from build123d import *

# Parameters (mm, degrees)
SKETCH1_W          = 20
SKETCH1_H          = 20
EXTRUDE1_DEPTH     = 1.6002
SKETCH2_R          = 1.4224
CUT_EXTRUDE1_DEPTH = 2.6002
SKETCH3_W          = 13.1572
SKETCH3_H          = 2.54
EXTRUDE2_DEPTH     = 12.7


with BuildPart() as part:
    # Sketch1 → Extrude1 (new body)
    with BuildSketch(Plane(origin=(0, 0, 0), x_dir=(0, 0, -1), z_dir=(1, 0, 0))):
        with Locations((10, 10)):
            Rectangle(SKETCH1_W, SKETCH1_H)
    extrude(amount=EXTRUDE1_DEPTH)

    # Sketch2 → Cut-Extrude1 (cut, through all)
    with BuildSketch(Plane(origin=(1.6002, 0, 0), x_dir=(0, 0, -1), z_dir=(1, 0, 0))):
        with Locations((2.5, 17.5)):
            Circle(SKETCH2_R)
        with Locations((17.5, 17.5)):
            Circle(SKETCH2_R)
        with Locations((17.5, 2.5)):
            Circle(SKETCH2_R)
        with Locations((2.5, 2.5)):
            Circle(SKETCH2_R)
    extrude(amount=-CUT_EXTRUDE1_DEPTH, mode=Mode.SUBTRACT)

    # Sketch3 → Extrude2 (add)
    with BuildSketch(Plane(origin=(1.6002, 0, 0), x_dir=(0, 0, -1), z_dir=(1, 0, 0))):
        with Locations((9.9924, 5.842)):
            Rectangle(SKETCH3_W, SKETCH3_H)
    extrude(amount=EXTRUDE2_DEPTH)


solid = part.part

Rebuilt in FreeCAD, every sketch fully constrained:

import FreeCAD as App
import Part
import Sketcher
from FreeCAD import Vector
Q = App.Units.Quantity

doc = App.newDocument("Part")
params = doc.addObject("Spreadsheet::Sheet", "Params")
for row, (alias, value) in enumerate([
    ("pad1_length", "0.063 in"),
    ("sketch2_diameter", "0.112 in"),
    ("sketch3_width", "0.1 in"),
    ("sketch3_height", "0.518 in"),
    ("pad2_length", "0.5 in"),
], start=1):
    params.set(f"A{row}", alias)
    params.set(f"B{row}", "=" + value)
    params.setAlias(f"B{row}", alias)

body = doc.addObject("PartDesign::Body", "Body")

sketch1 = doc.addObject("Sketcher::SketchObject", "Sketch")
body.addObject(sketch1)
sketch1.AttachmentSupport = (doc.YZ_Plane, [""])
sketch1.MapMode = "FlatFace"
sketch1.addGeometry([
    Part.LineSegment(Vector(20, 0, 0), Vector(0, 0, 0)),
    Part.LineSegment(Vector(0, 0, 0), Vector(0, -20, 0)),
    Part.LineSegment(Vector(0, -20, 0), Vector(20, -20, 0)),
    Part.LineSegment(Vector(20, -20, 0), Vector(20, 0, 0)),
], False)
sketch1.addConstraint([
    Sketcher.Constraint("Coincident", 0, 2, 1, 1),
    Sketcher.Constraint("Coincident", 1, 2, 2, 1),
    Sketcher.Constraint("Coincident", 2, 2, 3, 1),
    Sketcher.Constraint("Coincident", 3, 2, 0, 1),
    Sketcher.Constraint("Horizontal", 0),
    Sketcher.Constraint("Vertical", 1),
    Sketcher.Constraint("Horizontal", 2),
    Sketcher.Constraint("Vertical", 3),
    Sketcher.Constraint("Coincident", 0, 2, -1, 1),
    Sketcher.Constraint("Equal", 2, 1),
    Sketcher.Constraint("DistanceX", 0, 2, 0, 1, 20.0),
])
pad1 = doc.addObject("PartDesign::Pad", "Pad")
body.addObject(pad1)
pad1.Profile = sketch1
pad1.setExpression("Length", "Params.pad1_length")

sketch2 = doc.addObject("Sketcher::SketchObject", "Sketch001")
body.addObject(sketch2)
sketch2.AttachmentSupport = (doc.YZ_Plane, [""])
sketch2.MapMode = "FlatFace"
sketch2.AttachmentOffset = App.Placement(Vector(0, 0, 0.063 * 25.4), App.Rotation())
sketch2.addGeometry([
    Part.Circle(Vector(17.5, -2.5, 0), Vector(0, 0, 1), 1.4),
    Part.Circle(Vector(17.5, -17.5, 0), Vector(0, 0, 1), 1.4),
    Part.Circle(Vector(2.5, -17.5, 0), Vector(0, 0, 1), 1.4),
    Part.Circle(Vector(2.5, -2.5, 0), Vector(0, 0, 1), 1.4),
], False)
sketch2.addConstraint([
    Sketcher.Constraint("Equal", 0, 1),
    Sketcher.Constraint("Equal", 1, 2),
    Sketcher.Constraint("Equal", 2, 3),
    Sketcher.Constraint("Horizontal", 1, 3, 2, 3),
    Sketcher.Constraint("Horizontal", 0, 3, 3, 3),
    Sketcher.Constraint("Vertical", 0, 3, 1, 3),
    Sketcher.Constraint("Vertical", 2, 3, 3, 3),
    Sketcher.Constraint("Diameter", 0, Q("0.112 in")),
    Sketcher.Constraint("DistanceX", -1, 1, 0, 3, 17.5),
    Sketcher.Constraint("DistanceY", 0, 3, -1, 1, 2.5),
    Sketcher.Constraint("DistanceY", 1, 3, -1, 1, 17.5),
    Sketcher.Constraint("DistanceX", -1, 1, 2, 3, 2.5),
])
sketch2.setExpression("Constraints[7]", "Params.sketch2_diameter")
pocket1 = doc.addObject("PartDesign::Pocket", "Pocket")
body.addObject(pocket1)
pocket1.Profile = sketch2
pocket1.Type = "ThroughAll"

sketch3 = doc.addObject("Sketcher::SketchObject", "Sketch002")
body.addObject(sketch3)
sketch3.AttachmentSupport = (doc.YZ_Plane, [""])
sketch3.MapMode = "FlatFace"
sketch3.AttachmentOffset = App.Placement(Vector(0, 0, 0.063 * 25.4), App.Rotation())
sketch3.addGeometry([
    Part.LineSegment(Vector(7.1, -3.4, 0), Vector(4.6, -3.4, 0)),
    Part.LineSegment(Vector(4.6, -3.4, 0), Vector(4.6, -16.6, 0)),
    Part.LineSegment(Vector(4.6, -16.6, 0), Vector(7.1, -16.6, 0)),
    Part.LineSegment(Vector(7.1, -16.6, 0), Vector(7.1, -3.4, 0)),
], False)
sketch3.addConstraint([
    Sketcher.Constraint("Coincident", 0, 2, 1, 1),
    Sketcher.Constraint("Coincident", 1, 2, 2, 1),
    Sketcher.Constraint("Coincident", 2, 2, 3, 1),
    Sketcher.Constraint("Coincident", 3, 2, 0, 1),
    Sketcher.Constraint("Horizontal", 0),
    Sketcher.Constraint("Vertical", 1),
    Sketcher.Constraint("Horizontal", 2),
    Sketcher.Constraint("Vertical", 3),
    Sketcher.Constraint("DistanceX", 0, 2, 0, 1, Q("0.1 in")),
    Sketcher.Constraint("DistanceY", 1, 2, 1, 1, Q("0.518 in")),
    Sketcher.Constraint("DistanceX", -1, 1, 0, 2, Q("0.18 in")),
    Sketcher.Constraint("DistanceY", 0, 2, -1, 1, 3.4138),
])
sketch3.setExpression("Constraints[8]", "Params.sketch3_width")
sketch3.setExpression("Constraints[9]", "Params.sketch3_height")
pad2 = doc.addObject("PartDesign::Pad", "Pad001")
body.addObject(pad2)
pad2.Profile = sketch3
pad2.setExpression("Length", "Params.pad2_length")

doc.recompute()
